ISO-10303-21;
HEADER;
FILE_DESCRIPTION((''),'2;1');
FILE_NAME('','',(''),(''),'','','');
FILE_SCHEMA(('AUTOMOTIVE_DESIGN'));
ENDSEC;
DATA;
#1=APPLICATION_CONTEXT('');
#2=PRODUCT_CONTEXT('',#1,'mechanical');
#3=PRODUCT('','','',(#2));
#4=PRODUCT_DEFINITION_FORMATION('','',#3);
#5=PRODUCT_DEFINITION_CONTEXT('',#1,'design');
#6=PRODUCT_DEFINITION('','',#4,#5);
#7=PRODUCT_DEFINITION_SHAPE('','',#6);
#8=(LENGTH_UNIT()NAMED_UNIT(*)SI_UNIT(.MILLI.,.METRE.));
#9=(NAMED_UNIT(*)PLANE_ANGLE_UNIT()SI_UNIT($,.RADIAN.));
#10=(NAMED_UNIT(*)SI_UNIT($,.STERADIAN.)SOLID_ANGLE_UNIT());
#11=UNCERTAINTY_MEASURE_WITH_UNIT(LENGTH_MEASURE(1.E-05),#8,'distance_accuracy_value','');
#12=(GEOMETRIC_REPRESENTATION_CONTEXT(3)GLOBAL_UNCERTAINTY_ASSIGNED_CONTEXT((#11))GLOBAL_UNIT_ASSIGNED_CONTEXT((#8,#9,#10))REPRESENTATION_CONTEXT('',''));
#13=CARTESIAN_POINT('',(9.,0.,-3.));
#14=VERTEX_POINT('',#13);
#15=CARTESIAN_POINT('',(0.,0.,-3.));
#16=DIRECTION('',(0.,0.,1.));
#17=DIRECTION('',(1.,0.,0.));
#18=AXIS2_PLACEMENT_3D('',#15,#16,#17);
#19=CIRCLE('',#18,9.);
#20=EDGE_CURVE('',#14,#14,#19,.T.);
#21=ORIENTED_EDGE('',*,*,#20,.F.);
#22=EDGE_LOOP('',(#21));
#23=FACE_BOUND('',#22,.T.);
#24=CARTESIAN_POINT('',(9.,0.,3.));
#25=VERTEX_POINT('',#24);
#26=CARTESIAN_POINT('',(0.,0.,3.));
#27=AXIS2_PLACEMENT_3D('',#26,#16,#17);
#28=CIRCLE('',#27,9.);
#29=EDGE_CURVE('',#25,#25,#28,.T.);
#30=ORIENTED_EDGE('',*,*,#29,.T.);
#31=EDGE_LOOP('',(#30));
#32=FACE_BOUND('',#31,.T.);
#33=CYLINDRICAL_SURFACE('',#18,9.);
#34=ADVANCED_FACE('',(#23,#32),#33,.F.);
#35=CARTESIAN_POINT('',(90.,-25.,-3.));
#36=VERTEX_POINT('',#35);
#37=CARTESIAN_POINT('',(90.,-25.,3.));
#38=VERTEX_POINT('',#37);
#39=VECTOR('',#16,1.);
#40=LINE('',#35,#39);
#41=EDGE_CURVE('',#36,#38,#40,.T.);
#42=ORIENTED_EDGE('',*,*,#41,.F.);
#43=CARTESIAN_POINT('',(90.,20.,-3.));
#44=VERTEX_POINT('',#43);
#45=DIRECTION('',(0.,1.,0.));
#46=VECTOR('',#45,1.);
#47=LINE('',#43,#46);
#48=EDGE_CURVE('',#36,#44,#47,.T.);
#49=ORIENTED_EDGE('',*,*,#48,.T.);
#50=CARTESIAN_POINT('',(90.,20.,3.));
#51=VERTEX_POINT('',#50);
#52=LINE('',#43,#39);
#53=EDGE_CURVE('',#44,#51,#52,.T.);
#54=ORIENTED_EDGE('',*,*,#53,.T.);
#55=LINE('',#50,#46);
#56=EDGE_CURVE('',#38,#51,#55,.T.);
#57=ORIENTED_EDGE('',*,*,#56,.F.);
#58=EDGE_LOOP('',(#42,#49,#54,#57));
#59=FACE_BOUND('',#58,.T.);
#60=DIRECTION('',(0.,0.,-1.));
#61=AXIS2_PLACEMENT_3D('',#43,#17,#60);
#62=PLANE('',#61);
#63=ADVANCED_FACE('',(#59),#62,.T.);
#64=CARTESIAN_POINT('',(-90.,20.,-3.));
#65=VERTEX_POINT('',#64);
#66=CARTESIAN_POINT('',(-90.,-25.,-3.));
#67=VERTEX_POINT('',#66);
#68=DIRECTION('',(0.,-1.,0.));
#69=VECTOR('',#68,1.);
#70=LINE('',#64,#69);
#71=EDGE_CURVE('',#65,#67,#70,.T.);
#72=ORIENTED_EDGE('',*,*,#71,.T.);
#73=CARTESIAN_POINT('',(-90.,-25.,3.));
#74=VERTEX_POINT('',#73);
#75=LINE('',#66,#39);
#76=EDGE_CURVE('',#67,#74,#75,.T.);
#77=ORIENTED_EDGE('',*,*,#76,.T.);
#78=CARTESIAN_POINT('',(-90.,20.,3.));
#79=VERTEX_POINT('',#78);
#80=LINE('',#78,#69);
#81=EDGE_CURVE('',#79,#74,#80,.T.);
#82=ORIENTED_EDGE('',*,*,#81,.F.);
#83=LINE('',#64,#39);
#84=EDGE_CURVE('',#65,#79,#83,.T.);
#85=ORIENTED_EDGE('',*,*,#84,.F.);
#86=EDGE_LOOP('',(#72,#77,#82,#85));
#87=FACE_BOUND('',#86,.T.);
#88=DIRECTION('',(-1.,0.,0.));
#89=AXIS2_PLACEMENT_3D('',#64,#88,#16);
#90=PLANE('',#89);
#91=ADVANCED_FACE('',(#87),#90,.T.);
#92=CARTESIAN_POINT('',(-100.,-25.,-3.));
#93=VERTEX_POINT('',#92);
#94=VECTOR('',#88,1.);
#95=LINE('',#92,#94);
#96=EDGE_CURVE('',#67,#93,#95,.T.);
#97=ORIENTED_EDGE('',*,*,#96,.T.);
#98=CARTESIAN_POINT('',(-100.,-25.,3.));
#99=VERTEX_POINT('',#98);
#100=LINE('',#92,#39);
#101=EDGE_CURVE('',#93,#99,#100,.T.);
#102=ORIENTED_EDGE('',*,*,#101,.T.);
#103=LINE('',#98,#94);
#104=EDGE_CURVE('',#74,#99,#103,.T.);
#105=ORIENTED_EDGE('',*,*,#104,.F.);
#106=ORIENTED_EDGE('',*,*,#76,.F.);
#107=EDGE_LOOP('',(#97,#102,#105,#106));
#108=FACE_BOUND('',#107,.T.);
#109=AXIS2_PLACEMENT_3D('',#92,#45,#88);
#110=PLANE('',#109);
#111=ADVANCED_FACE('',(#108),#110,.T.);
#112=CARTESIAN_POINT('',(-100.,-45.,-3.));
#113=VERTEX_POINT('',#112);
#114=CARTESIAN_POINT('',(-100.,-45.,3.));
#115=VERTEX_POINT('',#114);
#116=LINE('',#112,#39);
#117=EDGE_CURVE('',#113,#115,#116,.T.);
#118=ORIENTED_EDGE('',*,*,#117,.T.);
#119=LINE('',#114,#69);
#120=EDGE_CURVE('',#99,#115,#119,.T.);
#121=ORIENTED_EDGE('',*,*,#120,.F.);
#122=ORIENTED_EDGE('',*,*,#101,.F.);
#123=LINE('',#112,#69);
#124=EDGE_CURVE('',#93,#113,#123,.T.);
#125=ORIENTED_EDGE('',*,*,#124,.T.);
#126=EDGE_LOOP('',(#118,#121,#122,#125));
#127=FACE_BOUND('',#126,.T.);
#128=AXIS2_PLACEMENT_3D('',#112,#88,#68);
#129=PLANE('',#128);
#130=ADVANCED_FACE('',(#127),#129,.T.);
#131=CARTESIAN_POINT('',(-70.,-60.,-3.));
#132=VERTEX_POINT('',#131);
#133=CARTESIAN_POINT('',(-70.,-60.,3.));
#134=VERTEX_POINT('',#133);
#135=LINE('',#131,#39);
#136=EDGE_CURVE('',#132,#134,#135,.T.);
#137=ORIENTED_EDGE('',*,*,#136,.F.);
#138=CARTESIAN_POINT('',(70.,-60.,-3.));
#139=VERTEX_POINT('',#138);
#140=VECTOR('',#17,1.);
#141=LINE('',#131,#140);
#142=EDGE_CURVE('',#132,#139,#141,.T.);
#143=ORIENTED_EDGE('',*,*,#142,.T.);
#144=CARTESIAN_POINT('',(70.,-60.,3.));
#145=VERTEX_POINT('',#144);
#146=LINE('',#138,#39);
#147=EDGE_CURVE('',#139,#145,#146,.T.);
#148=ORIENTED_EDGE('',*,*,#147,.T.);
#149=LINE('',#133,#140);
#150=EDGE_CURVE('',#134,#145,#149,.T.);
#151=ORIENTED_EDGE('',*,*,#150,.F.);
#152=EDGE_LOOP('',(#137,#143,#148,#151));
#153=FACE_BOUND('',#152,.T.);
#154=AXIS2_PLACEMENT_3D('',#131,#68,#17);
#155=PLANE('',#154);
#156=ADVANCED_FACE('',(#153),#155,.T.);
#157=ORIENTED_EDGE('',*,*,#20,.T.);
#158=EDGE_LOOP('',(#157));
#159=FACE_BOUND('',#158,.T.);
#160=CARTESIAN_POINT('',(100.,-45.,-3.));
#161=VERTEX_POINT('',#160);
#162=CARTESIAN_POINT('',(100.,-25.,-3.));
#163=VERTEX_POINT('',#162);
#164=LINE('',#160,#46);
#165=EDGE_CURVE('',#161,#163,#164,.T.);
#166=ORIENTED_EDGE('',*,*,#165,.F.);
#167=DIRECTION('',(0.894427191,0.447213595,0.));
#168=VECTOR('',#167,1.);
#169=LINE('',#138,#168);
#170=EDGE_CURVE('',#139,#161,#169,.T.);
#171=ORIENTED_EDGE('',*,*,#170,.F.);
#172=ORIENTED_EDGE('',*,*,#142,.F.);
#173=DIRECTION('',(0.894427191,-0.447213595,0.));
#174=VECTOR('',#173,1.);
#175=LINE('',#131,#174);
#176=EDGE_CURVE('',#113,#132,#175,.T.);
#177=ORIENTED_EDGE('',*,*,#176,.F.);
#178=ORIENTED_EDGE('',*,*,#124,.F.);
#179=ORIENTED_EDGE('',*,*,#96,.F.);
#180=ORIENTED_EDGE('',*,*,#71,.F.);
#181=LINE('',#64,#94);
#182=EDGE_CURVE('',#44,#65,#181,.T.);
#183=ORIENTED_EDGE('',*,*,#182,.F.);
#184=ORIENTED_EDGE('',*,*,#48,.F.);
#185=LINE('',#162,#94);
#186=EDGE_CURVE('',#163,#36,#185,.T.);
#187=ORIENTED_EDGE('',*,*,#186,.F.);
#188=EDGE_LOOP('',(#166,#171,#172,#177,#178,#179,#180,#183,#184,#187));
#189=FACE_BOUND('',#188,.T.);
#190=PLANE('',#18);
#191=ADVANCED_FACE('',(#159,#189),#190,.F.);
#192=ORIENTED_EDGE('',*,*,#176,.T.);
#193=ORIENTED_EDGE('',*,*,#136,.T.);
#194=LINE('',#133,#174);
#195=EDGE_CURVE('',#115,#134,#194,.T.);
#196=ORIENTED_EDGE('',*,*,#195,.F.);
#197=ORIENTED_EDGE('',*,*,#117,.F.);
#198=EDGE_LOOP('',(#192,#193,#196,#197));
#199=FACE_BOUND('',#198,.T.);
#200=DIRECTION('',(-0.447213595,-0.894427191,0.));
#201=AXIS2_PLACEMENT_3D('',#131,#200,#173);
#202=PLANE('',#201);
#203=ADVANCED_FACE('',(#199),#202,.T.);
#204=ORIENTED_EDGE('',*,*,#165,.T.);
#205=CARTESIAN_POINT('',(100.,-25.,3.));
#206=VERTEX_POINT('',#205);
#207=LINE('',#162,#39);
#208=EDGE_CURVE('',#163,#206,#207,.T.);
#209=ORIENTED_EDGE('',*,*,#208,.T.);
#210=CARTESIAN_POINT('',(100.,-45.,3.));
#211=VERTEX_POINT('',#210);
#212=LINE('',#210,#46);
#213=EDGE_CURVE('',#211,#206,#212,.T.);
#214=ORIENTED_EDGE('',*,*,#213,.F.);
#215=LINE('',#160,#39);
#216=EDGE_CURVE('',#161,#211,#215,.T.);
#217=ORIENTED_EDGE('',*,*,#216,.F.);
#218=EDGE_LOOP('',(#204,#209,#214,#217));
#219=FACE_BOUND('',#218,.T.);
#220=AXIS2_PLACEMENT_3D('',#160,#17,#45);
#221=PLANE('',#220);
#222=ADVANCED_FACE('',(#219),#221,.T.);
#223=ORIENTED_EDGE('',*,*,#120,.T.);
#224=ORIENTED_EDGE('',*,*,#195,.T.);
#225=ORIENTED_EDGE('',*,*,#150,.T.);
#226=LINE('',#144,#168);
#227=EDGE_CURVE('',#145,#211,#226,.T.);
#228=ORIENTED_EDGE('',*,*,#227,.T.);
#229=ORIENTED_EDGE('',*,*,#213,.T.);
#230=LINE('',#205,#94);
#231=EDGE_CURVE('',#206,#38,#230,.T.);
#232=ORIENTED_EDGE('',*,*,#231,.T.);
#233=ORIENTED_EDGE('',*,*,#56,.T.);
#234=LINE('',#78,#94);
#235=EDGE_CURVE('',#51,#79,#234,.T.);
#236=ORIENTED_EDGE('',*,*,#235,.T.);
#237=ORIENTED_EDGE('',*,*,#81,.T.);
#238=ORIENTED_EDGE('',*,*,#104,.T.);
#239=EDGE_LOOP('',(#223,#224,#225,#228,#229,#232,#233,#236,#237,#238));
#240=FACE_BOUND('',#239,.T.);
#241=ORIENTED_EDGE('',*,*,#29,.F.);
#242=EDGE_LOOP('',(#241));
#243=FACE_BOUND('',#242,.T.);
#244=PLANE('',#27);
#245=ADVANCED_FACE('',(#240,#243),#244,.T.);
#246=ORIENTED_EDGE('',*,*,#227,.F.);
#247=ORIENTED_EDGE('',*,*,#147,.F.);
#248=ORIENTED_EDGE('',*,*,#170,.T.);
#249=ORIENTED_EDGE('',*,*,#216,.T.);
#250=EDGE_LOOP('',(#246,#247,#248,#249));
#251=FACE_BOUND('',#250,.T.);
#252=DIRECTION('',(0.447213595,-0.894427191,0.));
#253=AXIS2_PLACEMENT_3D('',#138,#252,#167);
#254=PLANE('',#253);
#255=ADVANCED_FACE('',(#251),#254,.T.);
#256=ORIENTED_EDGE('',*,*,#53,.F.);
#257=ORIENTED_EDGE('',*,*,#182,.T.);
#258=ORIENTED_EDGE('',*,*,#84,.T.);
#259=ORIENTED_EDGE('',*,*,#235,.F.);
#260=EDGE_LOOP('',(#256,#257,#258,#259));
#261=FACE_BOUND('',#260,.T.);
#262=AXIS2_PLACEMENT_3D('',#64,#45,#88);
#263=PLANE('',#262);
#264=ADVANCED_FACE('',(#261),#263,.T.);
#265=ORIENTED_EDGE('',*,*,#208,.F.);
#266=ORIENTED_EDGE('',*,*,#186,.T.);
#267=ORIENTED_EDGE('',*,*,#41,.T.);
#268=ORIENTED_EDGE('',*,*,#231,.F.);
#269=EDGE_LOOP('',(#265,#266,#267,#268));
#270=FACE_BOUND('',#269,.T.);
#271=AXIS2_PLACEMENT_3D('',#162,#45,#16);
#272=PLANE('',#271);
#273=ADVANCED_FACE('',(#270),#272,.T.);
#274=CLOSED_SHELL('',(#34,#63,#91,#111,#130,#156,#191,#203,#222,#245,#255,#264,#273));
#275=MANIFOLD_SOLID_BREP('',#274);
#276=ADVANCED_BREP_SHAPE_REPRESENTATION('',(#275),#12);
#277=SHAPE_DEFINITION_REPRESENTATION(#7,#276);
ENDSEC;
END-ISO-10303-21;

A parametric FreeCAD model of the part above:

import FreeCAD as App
import Part
import Sketcher
from FreeCAD import Vector
Q = App.Units.Quantity

doc = App.newDocument("Part")
body = doc.addObject("PartDesign::Body", "Body")

sketch1 = body.newObject("Sketcher::SketchObject", "Sketch")
sketch1.AttachmentSupport = (doc.getObject("XY_Plane"), [""])
sketch1.MapMode = "FlatFace"
sketch1.addGeometry(Part.LineSegment(Vector(90, 20, 0), Vector(-90, 20, 0)), False)
sketch1.addGeometry(Part.LineSegment(Vector(-90, 20, 0), Vector(-90, -25, 0)), False)
sketch1.addGeometry(Part.LineSegment(Vector(-90, -25, 0), Vector(-100, -25, 0)), False)
sketch1.addGeometry(Part.LineSegment(Vector(-100, -25, 0), Vector(-100, -45, 0)), False)
sketch1.addGeometry(Part.LineSegment(Vector(-100, -45, 0), Vector(-70, -60, 0)), False)
sketch1.addGeometry(Part.LineSegment(Vector(-70, -60, 0), Vector(70, -60, 0)), False)
sketch1.addGeometry(Part.LineSegment(Vector(70, -60, 0), Vector(100, -45, 0)), False)
sketch1.addGeometry(Part.LineSegment(Vector(100, -45, 0), Vector(100, -25, 0)), False)
sketch1.addGeometry(Part.LineSegment(Vector(100, -25, 0), Vector(90, -25, 0)), False)
sketch1.addGeometry(Part.LineSegment(Vector(90, -25, 0), Vector(90, 20, 0)), False)
sketch1.addGeometry(Part.Circle(Vector(0, 0, 0), Vector(0, 0, 1), 9), False)
sketch1.addConstraint(Sketcher.Constraint("Coincident", 0, 2, 1, 1))
sketch1.addConstraint(Sketcher.Constraint("Coincident", 1, 2, 2, 1))
sketch1.addConstraint(Sketcher.Constraint("Coincident", 2, 2, 3, 1))
sketch1.addConstraint(Sketcher.Constraint("Coincident", 3, 2, 4, 1))
sketch1.addConstraint(Sketcher.Constraint("Coincident", 4, 2, 5, 1))
sketch1.addConstraint(Sketcher.Constraint("Coincident", 5, 2, 6, 1))
sketch1.addConstraint(Sketcher.Constraint("Coincident", 6, 2, 7, 1))
sketch1.addConstraint(Sketcher.Constraint("Coincident", 7, 2, 8, 1))
sketch1.addConstraint(Sketcher.Constraint("Coincident", 8, 2, 9, 1))
sketch1.addConstraint(Sketcher.Constraint("Coincident", 9, 2, 0, 1))
sketch1.addConstraint(Sketcher.Constraint("Horizontal", 0))
sketch1.addConstraint(Sketcher.Constraint("Vertical", 1))
sketch1.addConstraint(Sketcher.Constraint("Horizontal", 2))
sketch1.addConstraint(Sketcher.Constraint("Vertical", 3))
sketch1.addConstraint(Sketcher.Constraint("Horizontal", 5))
sketch1.addConstraint(Sketcher.Constraint("Vertical", 7))
sketch1.addConstraint(Sketcher.Constraint("Horizontal", 8))
sketch1.addConstraint(Sketcher.Constraint("Vertical", 9))
sketch1.addConstraint(Sketcher.Constraint("Coincident", 10, 3, -1, 1))
sketch1.addConstraint(Sketcher.Constraint("Symmetric", 3, 2, 6, 2, -2))
sketch1.addConstraint(Sketcher.Constraint("Symmetric", 1, 2, 8, 2, -2))
sketch1.addConstraint(Sketcher.Constraint("Equal", 4, 6))
sketch1.addConstraint(Sketcher.Constraint("Diameter", 10, Q("18 mm")))
sketch1.addConstraint(Sketcher.Constraint("DistanceX", 0, 2, 0, 1, Q("180 mm")))
sketch1.addConstraint(Sketcher.Constraint("DistanceX", 2, 2, 2, 1, Q("10 mm")))
sketch1.addConstraint(Sketcher.Constraint("DistanceX", 5, 1, 5, 2, Q("140 mm")))
sketch1.addConstraint(Sketcher.Constraint("DistanceY", 1, 2, 1, 1, Q("45 mm")))
sketch1.addConstraint(Sketcher.Constraint("DistanceY", 3, 2, 3, 1, Q("20 mm")))
sketch1.addConstraint(Sketcher.Constraint("DistanceY", -1, 1, 0, 2, Q("20 mm")))
sketch1.addConstraint(Sketcher.Constraint("DistanceY", 4, 2, -1, 1, Q("60 mm")))
pad1 = body.newObject("PartDesign::Pad", "Pad")
pad1.Profile = sketch1
pad1.Type = "TwoLengths"
pad1.Length = 3
pad1.Length2 = 3

doc.recompute()
